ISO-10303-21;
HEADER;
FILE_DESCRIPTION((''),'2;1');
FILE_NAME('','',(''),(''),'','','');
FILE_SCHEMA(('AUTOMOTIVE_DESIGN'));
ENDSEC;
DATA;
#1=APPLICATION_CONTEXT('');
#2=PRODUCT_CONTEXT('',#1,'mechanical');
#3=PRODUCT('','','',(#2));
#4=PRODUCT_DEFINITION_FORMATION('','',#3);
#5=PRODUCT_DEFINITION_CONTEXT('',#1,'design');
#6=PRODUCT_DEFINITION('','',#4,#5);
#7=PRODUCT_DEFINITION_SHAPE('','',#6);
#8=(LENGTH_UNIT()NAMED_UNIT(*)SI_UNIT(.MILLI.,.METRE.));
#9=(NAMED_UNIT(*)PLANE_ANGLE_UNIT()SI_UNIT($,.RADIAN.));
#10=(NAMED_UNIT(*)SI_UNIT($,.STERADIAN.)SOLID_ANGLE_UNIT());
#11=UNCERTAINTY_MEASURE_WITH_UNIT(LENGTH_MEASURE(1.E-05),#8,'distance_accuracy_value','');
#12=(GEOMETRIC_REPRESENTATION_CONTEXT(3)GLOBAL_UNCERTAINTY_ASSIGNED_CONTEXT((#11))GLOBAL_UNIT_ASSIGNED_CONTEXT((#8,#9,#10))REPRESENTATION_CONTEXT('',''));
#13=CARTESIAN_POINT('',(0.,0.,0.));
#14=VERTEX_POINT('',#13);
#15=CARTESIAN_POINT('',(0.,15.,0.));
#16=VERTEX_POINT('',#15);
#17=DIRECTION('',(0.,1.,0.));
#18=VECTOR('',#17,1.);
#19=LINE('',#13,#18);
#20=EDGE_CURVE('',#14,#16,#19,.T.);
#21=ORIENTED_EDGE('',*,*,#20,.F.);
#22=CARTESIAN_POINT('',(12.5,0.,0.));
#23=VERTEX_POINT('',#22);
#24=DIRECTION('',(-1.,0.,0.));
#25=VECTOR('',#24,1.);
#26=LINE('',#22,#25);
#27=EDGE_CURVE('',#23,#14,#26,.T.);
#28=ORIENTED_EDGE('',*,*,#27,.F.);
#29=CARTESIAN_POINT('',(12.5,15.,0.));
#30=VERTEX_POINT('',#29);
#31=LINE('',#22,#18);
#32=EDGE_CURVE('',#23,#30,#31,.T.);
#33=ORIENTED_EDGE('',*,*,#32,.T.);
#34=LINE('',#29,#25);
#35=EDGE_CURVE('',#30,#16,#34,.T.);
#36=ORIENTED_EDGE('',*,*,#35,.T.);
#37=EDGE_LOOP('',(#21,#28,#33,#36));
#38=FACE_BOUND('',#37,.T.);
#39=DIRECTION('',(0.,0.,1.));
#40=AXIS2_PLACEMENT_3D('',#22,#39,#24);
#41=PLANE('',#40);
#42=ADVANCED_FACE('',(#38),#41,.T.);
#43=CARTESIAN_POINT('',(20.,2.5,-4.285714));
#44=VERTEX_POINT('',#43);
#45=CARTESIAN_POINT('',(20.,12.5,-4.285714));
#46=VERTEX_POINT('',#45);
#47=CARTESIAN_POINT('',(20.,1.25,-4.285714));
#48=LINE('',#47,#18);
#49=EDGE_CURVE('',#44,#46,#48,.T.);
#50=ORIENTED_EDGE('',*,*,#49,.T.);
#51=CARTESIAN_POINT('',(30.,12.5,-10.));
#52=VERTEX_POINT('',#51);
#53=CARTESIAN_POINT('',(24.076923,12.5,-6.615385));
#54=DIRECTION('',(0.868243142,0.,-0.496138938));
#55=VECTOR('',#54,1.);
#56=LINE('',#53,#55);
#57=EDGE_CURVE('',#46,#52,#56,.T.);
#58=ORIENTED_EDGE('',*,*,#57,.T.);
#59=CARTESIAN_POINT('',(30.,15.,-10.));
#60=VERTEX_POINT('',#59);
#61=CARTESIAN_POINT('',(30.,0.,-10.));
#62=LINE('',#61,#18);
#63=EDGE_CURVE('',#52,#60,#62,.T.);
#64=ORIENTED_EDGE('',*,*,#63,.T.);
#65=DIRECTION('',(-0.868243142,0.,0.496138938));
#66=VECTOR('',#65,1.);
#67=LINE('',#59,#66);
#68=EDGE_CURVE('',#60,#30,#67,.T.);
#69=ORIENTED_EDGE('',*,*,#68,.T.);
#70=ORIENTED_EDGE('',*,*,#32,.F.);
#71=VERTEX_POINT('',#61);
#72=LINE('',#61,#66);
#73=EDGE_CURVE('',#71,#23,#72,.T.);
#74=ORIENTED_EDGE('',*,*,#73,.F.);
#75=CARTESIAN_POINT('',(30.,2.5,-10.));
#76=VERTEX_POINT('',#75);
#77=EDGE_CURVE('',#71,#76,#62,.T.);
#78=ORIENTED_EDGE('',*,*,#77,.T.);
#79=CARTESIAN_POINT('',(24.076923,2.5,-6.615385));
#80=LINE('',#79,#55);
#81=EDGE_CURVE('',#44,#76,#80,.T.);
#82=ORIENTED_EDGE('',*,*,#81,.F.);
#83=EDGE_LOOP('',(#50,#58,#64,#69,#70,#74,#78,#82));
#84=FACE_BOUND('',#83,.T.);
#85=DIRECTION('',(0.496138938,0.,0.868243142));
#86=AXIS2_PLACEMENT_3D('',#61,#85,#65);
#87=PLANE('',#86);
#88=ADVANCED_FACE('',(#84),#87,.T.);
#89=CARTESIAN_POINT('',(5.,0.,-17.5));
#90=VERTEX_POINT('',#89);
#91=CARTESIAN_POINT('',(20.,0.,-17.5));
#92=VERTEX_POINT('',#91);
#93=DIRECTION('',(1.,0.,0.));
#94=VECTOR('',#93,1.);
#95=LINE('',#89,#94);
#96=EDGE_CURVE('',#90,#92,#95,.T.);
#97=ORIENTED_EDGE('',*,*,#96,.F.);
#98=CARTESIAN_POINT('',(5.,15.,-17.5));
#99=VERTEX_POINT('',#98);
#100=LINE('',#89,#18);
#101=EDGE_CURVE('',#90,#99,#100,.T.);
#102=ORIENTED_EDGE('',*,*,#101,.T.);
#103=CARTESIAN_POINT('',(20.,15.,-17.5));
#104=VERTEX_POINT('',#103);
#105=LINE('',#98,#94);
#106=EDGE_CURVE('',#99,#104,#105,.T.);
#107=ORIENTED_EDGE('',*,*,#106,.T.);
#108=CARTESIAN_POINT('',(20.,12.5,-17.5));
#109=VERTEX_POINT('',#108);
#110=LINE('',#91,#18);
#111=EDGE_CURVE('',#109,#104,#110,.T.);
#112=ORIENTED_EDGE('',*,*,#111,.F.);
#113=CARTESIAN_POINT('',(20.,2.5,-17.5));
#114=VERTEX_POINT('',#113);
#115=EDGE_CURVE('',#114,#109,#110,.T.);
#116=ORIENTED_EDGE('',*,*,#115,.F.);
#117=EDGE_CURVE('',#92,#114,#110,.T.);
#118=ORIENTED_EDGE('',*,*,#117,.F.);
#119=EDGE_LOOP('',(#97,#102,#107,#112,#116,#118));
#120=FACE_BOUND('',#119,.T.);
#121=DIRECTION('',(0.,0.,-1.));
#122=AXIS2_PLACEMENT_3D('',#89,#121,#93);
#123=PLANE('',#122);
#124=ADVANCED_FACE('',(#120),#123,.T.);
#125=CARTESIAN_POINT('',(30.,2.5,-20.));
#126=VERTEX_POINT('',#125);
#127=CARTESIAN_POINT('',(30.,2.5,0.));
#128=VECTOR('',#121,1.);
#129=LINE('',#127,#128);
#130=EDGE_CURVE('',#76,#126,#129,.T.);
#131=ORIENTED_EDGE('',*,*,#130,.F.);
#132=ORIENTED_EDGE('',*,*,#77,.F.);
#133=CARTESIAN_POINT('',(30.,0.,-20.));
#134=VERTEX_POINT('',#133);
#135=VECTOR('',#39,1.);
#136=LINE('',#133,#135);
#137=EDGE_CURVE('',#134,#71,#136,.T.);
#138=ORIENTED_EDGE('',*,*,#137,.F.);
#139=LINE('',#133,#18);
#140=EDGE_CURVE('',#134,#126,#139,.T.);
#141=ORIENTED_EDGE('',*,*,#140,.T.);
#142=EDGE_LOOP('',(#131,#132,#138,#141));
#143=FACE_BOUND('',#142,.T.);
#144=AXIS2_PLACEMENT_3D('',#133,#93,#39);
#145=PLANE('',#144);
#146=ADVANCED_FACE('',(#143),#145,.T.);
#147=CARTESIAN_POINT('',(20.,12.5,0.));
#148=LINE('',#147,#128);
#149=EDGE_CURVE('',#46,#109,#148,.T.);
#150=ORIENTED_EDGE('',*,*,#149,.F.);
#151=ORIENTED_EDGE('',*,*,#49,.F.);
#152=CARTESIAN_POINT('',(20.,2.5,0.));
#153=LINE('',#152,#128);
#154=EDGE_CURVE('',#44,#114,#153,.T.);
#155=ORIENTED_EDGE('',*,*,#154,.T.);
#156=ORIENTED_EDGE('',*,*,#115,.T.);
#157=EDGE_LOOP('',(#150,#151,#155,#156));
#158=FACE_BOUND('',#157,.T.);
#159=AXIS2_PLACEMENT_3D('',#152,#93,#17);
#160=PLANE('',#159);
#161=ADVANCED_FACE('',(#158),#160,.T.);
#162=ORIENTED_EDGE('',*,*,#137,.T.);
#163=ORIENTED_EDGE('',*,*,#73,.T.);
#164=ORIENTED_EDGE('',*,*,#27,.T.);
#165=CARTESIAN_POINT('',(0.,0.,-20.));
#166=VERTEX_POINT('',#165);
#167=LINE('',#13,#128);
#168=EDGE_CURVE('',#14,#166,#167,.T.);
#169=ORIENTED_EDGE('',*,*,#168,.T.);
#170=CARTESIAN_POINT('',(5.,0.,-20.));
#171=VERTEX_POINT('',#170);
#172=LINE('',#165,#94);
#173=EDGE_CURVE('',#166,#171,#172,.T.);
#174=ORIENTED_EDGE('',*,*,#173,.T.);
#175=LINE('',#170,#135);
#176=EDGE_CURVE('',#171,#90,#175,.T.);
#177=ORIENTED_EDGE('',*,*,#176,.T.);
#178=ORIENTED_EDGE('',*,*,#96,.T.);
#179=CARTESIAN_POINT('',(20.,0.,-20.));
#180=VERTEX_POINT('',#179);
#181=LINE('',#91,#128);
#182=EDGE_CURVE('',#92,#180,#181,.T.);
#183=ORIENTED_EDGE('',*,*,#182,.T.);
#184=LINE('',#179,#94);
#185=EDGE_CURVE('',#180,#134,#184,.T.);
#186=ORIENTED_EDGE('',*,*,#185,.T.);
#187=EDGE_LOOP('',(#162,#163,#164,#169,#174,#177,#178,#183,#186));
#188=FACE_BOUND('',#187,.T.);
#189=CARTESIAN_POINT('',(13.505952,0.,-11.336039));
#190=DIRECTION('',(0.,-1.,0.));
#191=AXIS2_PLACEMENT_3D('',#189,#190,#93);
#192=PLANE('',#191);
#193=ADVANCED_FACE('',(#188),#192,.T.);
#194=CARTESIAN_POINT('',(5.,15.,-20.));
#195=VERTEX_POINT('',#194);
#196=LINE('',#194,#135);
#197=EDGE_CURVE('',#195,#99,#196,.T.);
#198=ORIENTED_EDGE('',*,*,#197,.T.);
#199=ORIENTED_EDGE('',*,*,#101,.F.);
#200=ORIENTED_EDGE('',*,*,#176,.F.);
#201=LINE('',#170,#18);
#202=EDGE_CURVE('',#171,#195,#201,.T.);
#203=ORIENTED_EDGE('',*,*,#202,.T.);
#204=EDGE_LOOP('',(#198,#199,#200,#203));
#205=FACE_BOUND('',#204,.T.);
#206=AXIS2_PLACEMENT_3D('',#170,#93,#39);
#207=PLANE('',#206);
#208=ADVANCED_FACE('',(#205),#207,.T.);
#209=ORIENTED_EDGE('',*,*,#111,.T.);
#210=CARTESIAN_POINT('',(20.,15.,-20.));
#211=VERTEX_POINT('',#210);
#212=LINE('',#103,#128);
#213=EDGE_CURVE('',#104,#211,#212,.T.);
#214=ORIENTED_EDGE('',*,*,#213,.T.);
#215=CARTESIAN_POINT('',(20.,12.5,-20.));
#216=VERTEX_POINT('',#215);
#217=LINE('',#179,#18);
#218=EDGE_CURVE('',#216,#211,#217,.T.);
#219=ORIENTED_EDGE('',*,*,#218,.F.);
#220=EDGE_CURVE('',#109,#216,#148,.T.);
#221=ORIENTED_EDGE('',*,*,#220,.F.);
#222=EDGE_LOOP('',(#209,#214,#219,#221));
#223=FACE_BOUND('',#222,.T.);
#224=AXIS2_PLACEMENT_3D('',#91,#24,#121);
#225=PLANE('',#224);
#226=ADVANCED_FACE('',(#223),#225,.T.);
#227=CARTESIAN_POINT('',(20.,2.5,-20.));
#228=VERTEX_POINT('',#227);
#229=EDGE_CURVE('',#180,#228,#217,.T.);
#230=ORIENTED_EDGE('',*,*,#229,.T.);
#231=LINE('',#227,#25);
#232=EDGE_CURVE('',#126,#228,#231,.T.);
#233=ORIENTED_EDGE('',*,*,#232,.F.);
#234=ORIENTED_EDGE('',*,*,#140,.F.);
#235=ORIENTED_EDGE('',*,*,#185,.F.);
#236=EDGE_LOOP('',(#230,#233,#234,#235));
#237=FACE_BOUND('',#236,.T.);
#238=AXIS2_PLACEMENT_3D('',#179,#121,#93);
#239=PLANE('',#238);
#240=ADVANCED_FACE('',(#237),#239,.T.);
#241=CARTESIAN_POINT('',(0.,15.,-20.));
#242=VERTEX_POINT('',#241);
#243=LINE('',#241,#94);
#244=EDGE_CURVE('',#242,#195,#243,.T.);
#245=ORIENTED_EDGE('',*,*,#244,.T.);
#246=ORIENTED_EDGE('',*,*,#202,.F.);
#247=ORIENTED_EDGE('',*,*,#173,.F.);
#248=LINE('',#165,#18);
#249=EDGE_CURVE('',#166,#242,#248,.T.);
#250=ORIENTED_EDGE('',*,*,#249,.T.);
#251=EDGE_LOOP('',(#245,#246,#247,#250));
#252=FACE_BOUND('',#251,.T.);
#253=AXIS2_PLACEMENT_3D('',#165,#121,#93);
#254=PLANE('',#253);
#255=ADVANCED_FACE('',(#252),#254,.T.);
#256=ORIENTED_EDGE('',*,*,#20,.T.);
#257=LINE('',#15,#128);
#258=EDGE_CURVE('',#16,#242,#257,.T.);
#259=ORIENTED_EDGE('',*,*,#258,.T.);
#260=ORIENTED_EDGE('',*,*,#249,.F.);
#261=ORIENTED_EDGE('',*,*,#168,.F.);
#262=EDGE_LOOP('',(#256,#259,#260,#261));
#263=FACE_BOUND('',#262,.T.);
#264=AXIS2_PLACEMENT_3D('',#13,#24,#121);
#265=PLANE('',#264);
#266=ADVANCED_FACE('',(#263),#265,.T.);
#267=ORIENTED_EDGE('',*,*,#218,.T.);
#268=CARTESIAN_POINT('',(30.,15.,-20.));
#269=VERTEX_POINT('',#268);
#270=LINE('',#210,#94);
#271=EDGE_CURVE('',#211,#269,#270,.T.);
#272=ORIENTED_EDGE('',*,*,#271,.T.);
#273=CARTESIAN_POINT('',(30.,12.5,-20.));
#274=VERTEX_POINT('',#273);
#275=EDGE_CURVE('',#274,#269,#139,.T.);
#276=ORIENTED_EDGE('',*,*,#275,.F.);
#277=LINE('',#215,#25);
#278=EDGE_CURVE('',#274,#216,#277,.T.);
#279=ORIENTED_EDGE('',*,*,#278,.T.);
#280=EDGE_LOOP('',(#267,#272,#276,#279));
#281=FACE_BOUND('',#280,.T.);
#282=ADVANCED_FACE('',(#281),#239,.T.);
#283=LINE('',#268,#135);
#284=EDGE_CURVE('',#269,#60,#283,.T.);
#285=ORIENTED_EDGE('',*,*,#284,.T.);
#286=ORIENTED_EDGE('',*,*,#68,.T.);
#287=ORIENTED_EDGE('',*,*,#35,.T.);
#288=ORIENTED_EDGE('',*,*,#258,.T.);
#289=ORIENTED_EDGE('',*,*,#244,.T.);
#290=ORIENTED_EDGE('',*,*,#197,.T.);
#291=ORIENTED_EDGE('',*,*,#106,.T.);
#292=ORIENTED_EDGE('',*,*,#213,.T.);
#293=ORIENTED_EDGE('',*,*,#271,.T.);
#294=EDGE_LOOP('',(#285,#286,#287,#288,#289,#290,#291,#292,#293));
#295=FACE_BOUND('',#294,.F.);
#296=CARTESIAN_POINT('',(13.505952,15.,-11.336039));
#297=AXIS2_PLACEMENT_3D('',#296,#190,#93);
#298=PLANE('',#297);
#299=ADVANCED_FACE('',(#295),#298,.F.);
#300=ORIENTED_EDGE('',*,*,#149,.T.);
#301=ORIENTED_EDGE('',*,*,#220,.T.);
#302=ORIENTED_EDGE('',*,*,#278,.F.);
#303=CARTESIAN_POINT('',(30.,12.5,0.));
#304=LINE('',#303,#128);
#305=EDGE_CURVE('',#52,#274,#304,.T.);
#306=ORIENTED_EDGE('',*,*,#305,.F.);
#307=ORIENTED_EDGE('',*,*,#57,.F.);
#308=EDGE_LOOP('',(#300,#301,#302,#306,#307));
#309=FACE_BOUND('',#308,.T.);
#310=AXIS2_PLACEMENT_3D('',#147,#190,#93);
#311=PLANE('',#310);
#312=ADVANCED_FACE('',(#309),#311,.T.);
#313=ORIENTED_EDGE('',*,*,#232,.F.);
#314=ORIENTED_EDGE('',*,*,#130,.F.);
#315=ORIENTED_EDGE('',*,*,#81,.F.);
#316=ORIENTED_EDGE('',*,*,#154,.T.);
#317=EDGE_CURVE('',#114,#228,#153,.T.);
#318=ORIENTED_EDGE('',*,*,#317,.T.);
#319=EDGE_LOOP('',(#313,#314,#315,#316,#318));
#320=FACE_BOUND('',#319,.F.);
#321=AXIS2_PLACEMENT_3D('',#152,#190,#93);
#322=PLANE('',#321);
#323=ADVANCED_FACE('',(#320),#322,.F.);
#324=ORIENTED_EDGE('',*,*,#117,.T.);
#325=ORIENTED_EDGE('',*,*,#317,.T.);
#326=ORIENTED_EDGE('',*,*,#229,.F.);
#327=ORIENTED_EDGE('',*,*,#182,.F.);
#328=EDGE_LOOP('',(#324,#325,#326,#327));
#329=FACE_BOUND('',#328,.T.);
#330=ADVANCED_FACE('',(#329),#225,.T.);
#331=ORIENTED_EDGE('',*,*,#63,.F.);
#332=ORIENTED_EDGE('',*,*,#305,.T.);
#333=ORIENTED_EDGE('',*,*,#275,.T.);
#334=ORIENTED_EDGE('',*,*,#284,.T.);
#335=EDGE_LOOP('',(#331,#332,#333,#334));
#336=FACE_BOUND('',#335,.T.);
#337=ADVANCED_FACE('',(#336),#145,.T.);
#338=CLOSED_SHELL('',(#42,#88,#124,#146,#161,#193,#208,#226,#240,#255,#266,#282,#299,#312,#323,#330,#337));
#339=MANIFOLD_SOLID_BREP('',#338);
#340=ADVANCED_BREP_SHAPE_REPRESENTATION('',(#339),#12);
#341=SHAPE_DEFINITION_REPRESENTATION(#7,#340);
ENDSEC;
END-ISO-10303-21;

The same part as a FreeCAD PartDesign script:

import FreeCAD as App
import Part
import Sketcher

V = App.Vector


def add_polygon(sketch, points):
    """Adds a closed chain of lines whose ends are joined by coincident constraints."""
    first, n = sketch.GeometryCount, len(points)
    for a, b in zip(points, points[1:] + points[:1]):
        sketch.addGeometry(Part.LineSegment(App.Vector(*a, 0), App.Vector(*b, 0)), False)
    for i in range(n):
        sketch.addConstraint(Sketcher.Constraint("Coincident", first + i, 2, first + (i + 1) % n, 1))

doc = App.newDocument("Part")
params = doc.addObject("Spreadsheet::Sheet", "Params")
for row, (alias, value) in enumerate([
    ("sketch1_width", "5 mm"),
    ("sketch1_width2", "15 mm"),
    ("sketch1_width3", "10 mm"),
    ("sketch1_height", "20 mm"),
    ("sketch1_width4", "12.5 mm"),
    ("pad1_length", "15 mm"),
    ("sketch2_width", "10 mm"),
    ("pocket1_length", "25 mm"),
], start=1):
    params.set(f"A{row}", alias)
    params.set(f"B{row}", "=" + value)
    params.setAlias(f"B{row}", alias)

body = doc.addObject("PartDesign::Body", "Body")

# Sketch on XZ plane
sketch1 = doc.addObject("Sketcher::SketchObject", "Sketch")
body.addObject(sketch1)
sketch1.AttachmentSupport = (doc.XZ_Plane, [""])
sketch1.MapMode = "FlatFace"
add_polygon(sketch1, [(12.5, 0), (0, 0), (0, -20), (5, -20), (5, -17.5), (20, -17.5), (20, -20), (30, -20), (30, -10)])  # lines 0-8
sketch1.addConstraint([
    Sketcher.Constraint("Horizontal", 0),
    Sketcher.Constraint("Vertical", 1),
    Sketcher.Constraint("Horizontal", 2),
    Sketcher.Constraint("Vertical", 3),
    Sketcher.Constraint("Horizontal", 4),
    Sketcher.Constraint("Vertical", 5),
    Sketcher.Constraint("Horizontal", 6),
    Sketcher.Constraint("Vertical", 7),
    Sketcher.Constraint("Coincident", 0, 2, -1, 1),
    Sketcher.Constraint("Horizontal", 2, 2, 5, 2),
    Sketcher.Constraint("Equal", 6, 7),
    Sketcher.Constraint("DistanceX", 2, 1, 2, 2, 5.0),
    Sketcher.Constraint("DistanceX", 4, 1, 4, 2, 15.0),
    Sketcher.Constraint("DistanceX", 6, 1, 6, 2, 10.0),
    Sketcher.Constraint("DistanceY", 1, 2, 1, 1, 20.0),
    Sketcher.Constraint("DistanceX", 0, 2, 0, 1, 12.5),
    Sketcher.Constraint("DistanceY", 3, 1, 3, 2, 2.5),
])
sketch1.setExpression("Constraints[20]", "Params.sketch1_width")
sketch1.setExpression("Constraints[21]", "Params.sketch1_width2")
sketch1.setExpression("Constraints[22]", "Params.sketch1_width3")
sketch1.setExpression("Constraints[23]", "Params.sketch1_height")
sketch1.setExpression("Constraints[24]", "Params.sketch1_width4")
pad1 = doc.addObject("PartDesign::Pad", "Pad")
body.addObject(pad1)
pad1.Profile = sketch1
pad1.setExpression("Length", "Params.pad1_length")
pad1.Reversed = True

# Sketch on XY plane
sketch2 = doc.addObject("Sketcher::SketchObject", "Sketch001")
body.addObject(sketch2)
sketch2.AttachmentSupport = (doc.XY_Plane, [""])
sketch2.MapMode = "FlatFace"
add_polygon(sketch2, [(20, 12), (20, 2), (30, 2), (30, 12)])  # lines 0-3
sketch2.addConstraint([
    Sketcher.Constraint("Vertical", 0),
    Sketcher.Constraint("Horizontal", 1),
    Sketcher.Constraint("Vertical", 2),
    Sketcher.Constraint("Horizontal", 3),
    Sketcher.Constraint("Equal", 3, 0),
    Sketcher.Constraint("DistanceX", 1, 1, 1, 2, 10.0),
    Sketcher.Constraint("DistanceX", -1, 1, 0, 2, 20.0),
    Sketcher.Constraint("DistanceY", -1, 1, 0, 2, 2.5),
])
sketch2.setExpression("Constraints[9]", "Params.sketch2_width")
pocket1 = doc.addObject("PartDesign::Pocket", "Pocket")
body.addObject(pocket1)
pocket1.Profile = sketch2
pocket1.setExpression("Length", "Params.pocket1_length")

doc.recompute()
